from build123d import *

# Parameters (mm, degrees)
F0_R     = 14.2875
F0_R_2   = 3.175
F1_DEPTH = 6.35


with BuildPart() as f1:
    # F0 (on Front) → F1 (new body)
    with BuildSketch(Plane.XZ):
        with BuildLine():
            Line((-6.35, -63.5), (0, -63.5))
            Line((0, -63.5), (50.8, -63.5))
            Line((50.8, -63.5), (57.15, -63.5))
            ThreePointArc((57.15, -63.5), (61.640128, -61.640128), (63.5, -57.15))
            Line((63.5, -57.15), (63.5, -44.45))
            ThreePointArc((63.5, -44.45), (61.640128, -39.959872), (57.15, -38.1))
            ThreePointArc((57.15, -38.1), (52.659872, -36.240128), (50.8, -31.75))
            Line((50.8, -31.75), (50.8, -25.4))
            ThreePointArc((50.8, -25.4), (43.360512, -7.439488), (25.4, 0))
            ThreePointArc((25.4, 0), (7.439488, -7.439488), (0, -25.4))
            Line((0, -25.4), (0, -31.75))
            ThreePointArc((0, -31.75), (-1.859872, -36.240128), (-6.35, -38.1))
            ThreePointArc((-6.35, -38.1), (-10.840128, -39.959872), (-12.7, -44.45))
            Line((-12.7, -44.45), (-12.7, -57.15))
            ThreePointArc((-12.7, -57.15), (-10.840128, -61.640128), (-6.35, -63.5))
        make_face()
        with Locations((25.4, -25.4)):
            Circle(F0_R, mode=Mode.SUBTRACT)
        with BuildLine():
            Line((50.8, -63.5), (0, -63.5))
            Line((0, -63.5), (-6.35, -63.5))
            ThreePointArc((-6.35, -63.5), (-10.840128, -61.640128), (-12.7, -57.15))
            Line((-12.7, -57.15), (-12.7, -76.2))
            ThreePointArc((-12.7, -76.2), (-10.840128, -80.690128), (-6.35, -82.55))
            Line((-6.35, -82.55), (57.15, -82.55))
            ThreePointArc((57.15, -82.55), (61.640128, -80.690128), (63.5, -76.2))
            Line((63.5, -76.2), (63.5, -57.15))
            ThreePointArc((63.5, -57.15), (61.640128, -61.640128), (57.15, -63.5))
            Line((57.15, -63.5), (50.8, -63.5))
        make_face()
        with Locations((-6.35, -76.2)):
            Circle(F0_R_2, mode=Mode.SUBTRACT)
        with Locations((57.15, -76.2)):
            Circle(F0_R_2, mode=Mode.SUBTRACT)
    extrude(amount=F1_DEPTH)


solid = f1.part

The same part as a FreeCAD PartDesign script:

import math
import FreeCAD as App
import Part
import Sketcher
Q = App.Units.Quantity

doc = App.newDocument("Part")
body = doc.addObject("PartDesign::Body", "Body")

# Sketch on XZ plane
sketch1 = body.newObject("Sketcher::SketchObject", "Sketch")
sketch1.AttachmentSupport = (doc.getObject("XZ_Plane"), [""])
sketch1.MapMode = "FlatFace"
sketch1.addGeometry([
    Part.LineSegment(App.Vector(-12.7, -44.5, 0), App.Vector(-12.7, -76.2, 0)),  # 0
    Part.ArcOfCircle(Part.Circle(App.Vector(-6.3, -76.2, 0), App.Vector(0, 0, 1), 6.4), math.radians(-180), math.radians(-90)),  # 1
    Part.LineSegment(App.Vector(-6.3, -82.5, 0), App.Vector(57.1, -82.5, 0)),  # 2
    Part.ArcOfCircle(Part.Circle(App.Vector(57.1, -76.2, 0), App.Vector(0, 0, 1), 6.4), math.radians(-90), math.radians(0)),  # 3
    Part.LineSegment(App.Vector(63.5, -76.2, 0), App.Vector(63.5, -44.5, 0)),  # 4
    Part.ArcOfCircle(Part.Circle(App.Vector(57.1, -44.5, 0), App.Vector(0, 0, 1), 6.4), math.radians(0), math.radians(90)),  # 5
    Part.ArcOfCircle(Part.Circle(App.Vector(57.2, -31.7, 0), App.Vector(0, 0, 1), 6.4), math.radians(-180), math.radians(-90)),  # 6
    Part.LineSegment(App.Vector(50.8, -31.8, 0), App.Vector(50.8, -25.4, 0)),  # 7
    Part.ArcOfCircle(Part.Circle(App.Vector(25.4, -25.4, 0), App.Vector(0, 0, 1), 25.4), math.radians(0), math.radians(90)),  # 8
    Part.ArcOfCircle(Part.Circle(App.Vector(25.4, -25.4, 0), App.Vector(0, 0, 1), 25.4), math.radians(90), math.radians(180)),  # 9
    Part.LineSegment(App.Vector(0, -25.4, 0), App.Vector(0, -31.8, 0)),  # 10
    Part.ArcOfCircle(Part.Circle(App.Vector(-6.4, -31.7, 0), App.Vector(0, 0, 1), 6.4), math.radians(-90), math.radians(0)),  # 11
    Part.ArcOfCircle(Part.Circle(App.Vector(-6.3, -44.5, 0), App.Vector(0, 0, 1), 6.4), math.radians(90), math.radians(180)),  # 12
    Part.Circle(App.Vector(-6.3, -76.2, 0), App.Vector(0, 0, 1), 3.2),  # 13
    Part.Circle(App.Vector(57.1, -76.2, 0), App.Vector(0, 0, 1), 3.2),  # 14
    Part.Circle(App.Vector(25.4, -25.4, 0), App.Vector(0, 0, 1), 14.3),  # 15
], False)
sketch1.addConstraint([
    Sketcher.Constraint("Tangent", 0, 2, 1, 1),
    Sketcher.Constraint("Tangent", 1, 2, 2, 1),
    Sketcher.Constraint("Tangent", 2, 2, 3, 1),
    Sketcher.Constraint("Tangent", 3, 2, 4, 1),
    Sketcher.Constraint("Tangent", 4, 2, 5, 1),
    Sketcher.Constraint("Tangent", 5, 2, 6, 2),
    Sketcher.Constraint("Tangent", 6, 1, 7, 1),
    Sketcher.Constraint("Tangent", 7, 2, 8, 1),
    Sketcher.Constraint("Tangent", 8, 2, 9, 1),
    Sketcher.Constraint("Tangent", 9, 2, 10, 1),
    Sketcher.Constraint("Tangent", 10, 2, 11, 2),
    Sketcher.Constraint("Tangent", 11, 1, 12, 1),
    Sketcher.Constraint("Tangent", 12, 2, 0, 1),
    Sketcher.Constraint("Vertical", 0),
    Sketcher.Constraint("Horizontal", 2),
    Sketcher.Constraint("Vertical", 4),
    Sketcher.Constraint("Vertical", 7),
    Sketcher.Constraint("Vertical", 10),
    Sketcher.Constraint("Coincident", 13, 3, 1, 3),
    Sketcher.Constraint("Coincident", 14, 3, 3, 3),
    Sketcher.Constraint("Coincident", 15, 3, 8, 3),
    Sketcher.Constraint("Equal", 1, 3),
    Sketcher.Constraint("Equal", 3, 5),
    Sketcher.Constraint("Equal", 5, 6),
    Sketcher.Constraint("Equal", 8, 9),
    Sketcher.Constraint("Equal", 6, 11),
    Sketcher.Constraint("Equal", 11, 12),
    Sketcher.Constraint("Equal", 13, 14),
    Sketcher.Constraint("PointOnObject", 8, 2, -1),
    Sketcher.Constraint("PointOnObject", 9, 2, -2),
    Sketcher.Constraint("Horizontal", 6, 3, 11, 3),
    Sketcher.Constraint("Vertical", 5, 3, 6, 3),
    Sketcher.Constraint("Vertical", 1, 3, 11, 3),
    Sketcher.Constraint("Vertical", 15, 3, 8, 2),
    Sketcher.Constraint("Radius", 8, Q("1 in")),
    Sketcher.Constraint("Diameter", 13, Q("0.25 in")),
    Sketcher.Constraint("Radius", 1, Q("0.25 in")),
    Sketcher.Constraint("Diameter", 15, Q("1.125 in")),
    Sketcher.Constraint("DistanceY", 1, 3, -1, 1, Q("3 in")),
    Sketcher.Constraint("DistanceY", 1, 2, 11, 3, Q("2 in")),
])
pad1 = body.newObject("PartDesign::Pad", "Pad")
pad1.Profile = sketch1
pad1.Length = Q("0.25 in")

doc.recompute()
